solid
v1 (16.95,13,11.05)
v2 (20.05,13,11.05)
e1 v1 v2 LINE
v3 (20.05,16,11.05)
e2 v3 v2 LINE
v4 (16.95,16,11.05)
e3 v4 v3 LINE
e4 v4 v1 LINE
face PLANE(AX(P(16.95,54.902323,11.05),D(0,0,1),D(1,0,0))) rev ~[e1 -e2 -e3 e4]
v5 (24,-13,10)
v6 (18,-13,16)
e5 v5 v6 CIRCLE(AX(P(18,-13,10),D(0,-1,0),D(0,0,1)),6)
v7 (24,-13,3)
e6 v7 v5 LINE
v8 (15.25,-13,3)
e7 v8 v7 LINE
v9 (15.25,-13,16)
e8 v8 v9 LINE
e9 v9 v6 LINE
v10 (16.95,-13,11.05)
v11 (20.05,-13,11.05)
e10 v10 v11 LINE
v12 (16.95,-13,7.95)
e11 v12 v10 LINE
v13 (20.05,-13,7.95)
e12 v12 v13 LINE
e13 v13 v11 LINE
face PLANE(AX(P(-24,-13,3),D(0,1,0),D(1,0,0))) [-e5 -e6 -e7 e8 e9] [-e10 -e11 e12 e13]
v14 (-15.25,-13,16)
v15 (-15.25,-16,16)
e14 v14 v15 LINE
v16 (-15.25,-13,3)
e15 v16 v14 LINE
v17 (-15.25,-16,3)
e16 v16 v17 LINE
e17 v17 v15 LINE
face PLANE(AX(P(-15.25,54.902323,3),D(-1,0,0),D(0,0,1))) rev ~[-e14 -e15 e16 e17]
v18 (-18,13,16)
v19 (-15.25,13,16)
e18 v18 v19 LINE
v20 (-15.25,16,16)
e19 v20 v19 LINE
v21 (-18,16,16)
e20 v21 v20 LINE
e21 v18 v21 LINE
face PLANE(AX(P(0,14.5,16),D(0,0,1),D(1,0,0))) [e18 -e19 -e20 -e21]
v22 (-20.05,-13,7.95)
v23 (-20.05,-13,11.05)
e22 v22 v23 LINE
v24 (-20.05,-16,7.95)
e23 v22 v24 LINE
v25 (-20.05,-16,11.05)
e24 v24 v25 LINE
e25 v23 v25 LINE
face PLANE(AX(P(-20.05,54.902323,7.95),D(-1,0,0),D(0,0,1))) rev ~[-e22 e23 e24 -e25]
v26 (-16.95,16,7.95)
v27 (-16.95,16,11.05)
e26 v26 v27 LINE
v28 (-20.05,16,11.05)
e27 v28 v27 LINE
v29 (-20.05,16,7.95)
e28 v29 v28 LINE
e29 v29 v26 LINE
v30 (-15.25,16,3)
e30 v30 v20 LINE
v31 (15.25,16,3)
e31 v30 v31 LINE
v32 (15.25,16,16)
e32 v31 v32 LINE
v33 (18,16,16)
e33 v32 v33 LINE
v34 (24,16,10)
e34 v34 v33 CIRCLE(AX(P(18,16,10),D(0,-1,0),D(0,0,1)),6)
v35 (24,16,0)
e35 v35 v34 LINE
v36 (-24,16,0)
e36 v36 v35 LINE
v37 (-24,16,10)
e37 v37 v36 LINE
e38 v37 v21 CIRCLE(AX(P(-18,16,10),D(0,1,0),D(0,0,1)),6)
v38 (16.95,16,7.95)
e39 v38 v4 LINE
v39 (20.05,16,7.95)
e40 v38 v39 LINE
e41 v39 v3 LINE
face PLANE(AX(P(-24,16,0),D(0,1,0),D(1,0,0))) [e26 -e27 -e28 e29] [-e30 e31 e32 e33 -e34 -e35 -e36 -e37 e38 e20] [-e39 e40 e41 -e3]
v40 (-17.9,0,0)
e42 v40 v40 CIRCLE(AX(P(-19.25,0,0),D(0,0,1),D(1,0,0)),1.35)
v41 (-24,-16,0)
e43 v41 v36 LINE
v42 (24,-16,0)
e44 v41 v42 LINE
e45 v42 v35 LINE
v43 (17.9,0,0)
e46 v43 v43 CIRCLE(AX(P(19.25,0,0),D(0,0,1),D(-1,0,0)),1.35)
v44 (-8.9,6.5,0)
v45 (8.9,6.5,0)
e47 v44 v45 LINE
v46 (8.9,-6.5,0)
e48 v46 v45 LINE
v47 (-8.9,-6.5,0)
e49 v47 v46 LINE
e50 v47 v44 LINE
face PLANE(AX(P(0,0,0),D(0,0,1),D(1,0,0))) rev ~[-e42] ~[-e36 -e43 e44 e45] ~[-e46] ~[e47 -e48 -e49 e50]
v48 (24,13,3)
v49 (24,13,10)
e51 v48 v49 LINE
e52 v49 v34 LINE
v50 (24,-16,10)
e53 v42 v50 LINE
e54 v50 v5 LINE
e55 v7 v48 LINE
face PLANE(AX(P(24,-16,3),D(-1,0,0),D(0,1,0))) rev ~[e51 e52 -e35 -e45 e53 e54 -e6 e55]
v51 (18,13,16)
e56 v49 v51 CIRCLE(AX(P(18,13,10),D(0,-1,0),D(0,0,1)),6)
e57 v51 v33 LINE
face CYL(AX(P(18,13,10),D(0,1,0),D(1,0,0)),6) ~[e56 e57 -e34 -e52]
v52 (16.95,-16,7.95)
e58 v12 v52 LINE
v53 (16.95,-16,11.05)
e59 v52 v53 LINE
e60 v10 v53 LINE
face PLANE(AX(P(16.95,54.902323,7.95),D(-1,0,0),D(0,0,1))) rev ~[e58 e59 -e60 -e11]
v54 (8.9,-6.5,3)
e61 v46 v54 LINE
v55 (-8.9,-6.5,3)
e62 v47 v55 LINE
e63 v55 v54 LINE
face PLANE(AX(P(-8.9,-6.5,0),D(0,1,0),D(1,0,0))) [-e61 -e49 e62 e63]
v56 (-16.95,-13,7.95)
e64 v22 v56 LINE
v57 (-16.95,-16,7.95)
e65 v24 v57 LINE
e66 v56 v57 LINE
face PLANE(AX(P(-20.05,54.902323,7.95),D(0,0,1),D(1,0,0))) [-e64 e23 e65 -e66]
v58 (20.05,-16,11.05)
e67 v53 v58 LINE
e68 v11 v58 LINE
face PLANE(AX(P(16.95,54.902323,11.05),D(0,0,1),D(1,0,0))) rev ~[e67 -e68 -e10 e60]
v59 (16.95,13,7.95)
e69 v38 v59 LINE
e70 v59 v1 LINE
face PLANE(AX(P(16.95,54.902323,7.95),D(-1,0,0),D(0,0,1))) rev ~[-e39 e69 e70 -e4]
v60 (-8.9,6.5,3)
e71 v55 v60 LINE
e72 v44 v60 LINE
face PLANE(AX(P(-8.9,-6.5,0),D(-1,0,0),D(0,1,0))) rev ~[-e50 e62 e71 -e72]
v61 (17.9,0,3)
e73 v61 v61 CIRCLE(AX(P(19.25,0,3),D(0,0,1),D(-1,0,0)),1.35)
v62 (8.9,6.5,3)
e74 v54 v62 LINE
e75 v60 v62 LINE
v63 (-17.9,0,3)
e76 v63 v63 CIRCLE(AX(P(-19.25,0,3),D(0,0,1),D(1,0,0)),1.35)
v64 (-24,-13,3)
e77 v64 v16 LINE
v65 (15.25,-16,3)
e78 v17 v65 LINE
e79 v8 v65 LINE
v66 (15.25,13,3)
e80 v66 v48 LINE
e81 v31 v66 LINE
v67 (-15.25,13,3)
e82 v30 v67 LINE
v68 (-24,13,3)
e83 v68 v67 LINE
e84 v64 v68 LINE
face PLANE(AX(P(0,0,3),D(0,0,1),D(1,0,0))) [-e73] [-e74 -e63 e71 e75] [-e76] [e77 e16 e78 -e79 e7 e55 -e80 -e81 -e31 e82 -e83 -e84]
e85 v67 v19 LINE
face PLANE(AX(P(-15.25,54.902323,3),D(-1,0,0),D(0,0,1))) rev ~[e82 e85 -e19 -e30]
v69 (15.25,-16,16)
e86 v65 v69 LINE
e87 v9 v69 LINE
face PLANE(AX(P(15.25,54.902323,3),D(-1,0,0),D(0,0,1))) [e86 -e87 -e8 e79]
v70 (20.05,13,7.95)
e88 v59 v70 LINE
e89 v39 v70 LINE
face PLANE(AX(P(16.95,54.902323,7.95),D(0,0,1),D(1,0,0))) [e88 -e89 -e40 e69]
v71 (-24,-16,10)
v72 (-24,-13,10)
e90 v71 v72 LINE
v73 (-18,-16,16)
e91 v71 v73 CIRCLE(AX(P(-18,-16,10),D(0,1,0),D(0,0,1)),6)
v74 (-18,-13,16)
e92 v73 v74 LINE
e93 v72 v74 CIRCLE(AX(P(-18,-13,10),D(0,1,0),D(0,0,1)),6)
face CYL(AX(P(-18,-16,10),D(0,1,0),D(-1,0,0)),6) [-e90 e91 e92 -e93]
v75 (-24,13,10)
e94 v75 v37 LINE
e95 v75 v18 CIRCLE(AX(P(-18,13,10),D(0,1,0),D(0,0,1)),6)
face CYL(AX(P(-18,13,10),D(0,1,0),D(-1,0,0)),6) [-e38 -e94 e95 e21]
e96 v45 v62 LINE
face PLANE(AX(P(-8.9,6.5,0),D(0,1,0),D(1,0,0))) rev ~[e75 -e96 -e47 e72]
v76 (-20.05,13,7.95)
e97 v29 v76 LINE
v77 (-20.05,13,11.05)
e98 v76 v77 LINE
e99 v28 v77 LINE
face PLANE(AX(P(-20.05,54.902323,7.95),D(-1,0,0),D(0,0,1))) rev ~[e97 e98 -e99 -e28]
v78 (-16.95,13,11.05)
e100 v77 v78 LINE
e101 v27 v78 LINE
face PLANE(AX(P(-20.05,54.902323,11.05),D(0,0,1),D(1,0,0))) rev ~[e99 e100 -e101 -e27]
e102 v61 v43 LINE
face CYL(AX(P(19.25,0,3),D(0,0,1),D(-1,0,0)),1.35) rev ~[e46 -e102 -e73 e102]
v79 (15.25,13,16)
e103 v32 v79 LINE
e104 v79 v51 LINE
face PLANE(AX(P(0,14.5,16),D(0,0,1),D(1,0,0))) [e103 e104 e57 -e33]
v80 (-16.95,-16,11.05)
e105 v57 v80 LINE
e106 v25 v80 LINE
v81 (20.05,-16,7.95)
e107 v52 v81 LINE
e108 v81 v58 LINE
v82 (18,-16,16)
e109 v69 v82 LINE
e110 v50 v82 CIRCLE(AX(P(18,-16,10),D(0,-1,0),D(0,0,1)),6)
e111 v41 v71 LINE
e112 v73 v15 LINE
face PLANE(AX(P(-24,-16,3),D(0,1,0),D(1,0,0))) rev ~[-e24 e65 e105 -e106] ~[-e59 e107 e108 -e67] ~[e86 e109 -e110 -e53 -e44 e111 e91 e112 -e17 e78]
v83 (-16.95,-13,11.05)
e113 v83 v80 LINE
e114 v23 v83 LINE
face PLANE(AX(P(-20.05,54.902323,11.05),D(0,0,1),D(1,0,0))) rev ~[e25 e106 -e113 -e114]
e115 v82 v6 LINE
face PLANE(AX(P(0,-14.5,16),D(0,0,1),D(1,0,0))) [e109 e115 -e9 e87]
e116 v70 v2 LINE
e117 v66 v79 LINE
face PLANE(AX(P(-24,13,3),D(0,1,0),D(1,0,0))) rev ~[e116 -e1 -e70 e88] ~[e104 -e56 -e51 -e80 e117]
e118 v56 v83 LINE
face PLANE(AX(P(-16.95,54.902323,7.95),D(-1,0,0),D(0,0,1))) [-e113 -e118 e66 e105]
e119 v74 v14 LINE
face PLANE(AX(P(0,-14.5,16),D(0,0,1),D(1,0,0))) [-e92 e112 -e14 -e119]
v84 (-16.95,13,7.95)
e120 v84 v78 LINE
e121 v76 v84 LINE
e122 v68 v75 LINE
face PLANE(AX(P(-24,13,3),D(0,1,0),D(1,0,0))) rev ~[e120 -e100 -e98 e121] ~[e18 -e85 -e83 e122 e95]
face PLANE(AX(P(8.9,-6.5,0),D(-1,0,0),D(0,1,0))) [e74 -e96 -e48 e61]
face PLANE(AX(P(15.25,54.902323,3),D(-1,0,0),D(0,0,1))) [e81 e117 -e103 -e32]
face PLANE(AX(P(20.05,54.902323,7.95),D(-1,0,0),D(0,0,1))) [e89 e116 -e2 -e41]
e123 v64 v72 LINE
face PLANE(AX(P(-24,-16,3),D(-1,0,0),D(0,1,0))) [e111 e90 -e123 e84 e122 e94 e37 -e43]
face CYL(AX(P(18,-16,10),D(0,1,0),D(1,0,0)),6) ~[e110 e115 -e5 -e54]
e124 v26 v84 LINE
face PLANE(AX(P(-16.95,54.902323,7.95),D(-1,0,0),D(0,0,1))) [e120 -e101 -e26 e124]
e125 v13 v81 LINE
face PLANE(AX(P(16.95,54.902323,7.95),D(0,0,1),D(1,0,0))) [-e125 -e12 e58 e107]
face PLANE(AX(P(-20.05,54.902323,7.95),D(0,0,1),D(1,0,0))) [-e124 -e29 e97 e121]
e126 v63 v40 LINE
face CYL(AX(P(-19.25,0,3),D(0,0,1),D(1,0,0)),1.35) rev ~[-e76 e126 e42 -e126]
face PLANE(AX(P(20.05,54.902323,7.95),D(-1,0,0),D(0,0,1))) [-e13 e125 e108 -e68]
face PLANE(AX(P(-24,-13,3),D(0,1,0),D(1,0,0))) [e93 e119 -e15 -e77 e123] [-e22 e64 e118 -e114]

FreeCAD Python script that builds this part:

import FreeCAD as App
import Part
import Sketcher

V = App.Vector


def edges_at(feature, points):
    """Names of the edges that pass closest to the given points."""
    edges = feature.Shape.Edges
    near = lambda p: min(range(len(edges)), key=lambda i: edges[i].distToShape(Part.Vertex(*p))[0])
    return sorted({f"Edge{near(p) + 1}" for p in points})


def add_polygon(sketch, points):
    """Adds a closed chain of lines whose ends are joined by coincident constraints."""
    first, n = sketch.GeometryCount, len(points)
    for a, b in zip(points, points[1:] + points[:1]):
        sketch.addGeometry(Part.LineSegment(App.Vector(*a, 0), App.Vector(*b, 0)), False)
    for i in range(n):
        sketch.addConstraint(Sketcher.Constraint("Coincident", first + i, 2, first + (i + 1) % n, 1))

doc = App.newDocument("Part")
body = doc.addObject("PartDesign::Body", "Body")

# Sketch on XY plane
sketch1 = doc.addObject("Sketcher::SketchObject", "Sketch")
body.addObject(sketch1)
sketch1.AttachmentSupport = (doc.XY_Plane, [""])
sketch1.MapMode = "FlatFace"
add_polygon(sketch1, [(-24, 16), (-24, -16), (24, -16), (24, 16)])  # lines 0-3
add_polygon(sketch1, [(9, -6), (-9, -6), (-9, 6), (9, 6)])  # lines 4-7
sketch1.addConstraint(Sketcher.Constraint("Vertical", 0))
sketch1.addConstraint(Sketcher.Constraint("Horizontal", 1))
sketch1.addConstraint(Sketcher.Constraint("Vertical", 2))
sketch1.addConstraint(Sketcher.Constraint("Horizontal", 3))
sketch1.addConstraint(Sketcher.Constraint("Horizontal", 4))
sketch1.addConstraint(Sketcher.Constraint("Vertical", 5))
sketch1.addConstraint(Sketcher.Constraint("Horizontal", 6))
sketch1.addConstraint(Sketcher.Constraint("Vertical", 7))
sketch1.addConstraint(Sketcher.Constraint("Symmetric", 0, 2, 2, 2, -1, 1))
sketch1.addConstraint(Sketcher.Constraint("Symmetric", 4, 2, 6, 2, -1, 1))
sketch1.addConstraint(Sketcher.Constraint("DistanceX", 1, 1, 1, 2, 48.0))
sketch1.addConstraint(Sketcher.Constraint("DistanceY", 0, 2, 0, 1, 32.0))
sketch1.addConstraint(Sketcher.Constraint("DistanceY", 5, 1, 5, 2, 13.0))
sketch1.addConstraint(Sketcher.Constraint("DistanceX", 4, 2, 4, 1, 17.8))
pad1 = doc.addObject("PartDesign::Pad", "Pad")
body.addObject(pad1)
pad1.Profile = sketch1
pad1.Length = 3

# Sketch on XY plane
sketch2 = doc.addObject("Sketcher::SketchObject", "Sketch001")
body.addObject(sketch2)
sketch2.AttachmentSupport = (doc.XY_Plane, [""])
sketch2.MapMode = "FlatFace"
sketch2.AttachmentOffset = App.Placement(V(0, 0, 3), App.Rotation())
sketch2.addGeometry(Part.Circle(V(-19.2, 0, 0), V(0, 0, 1), 1.4), False)
sketch2.addGeometry(Part.Circle(V(19.2, 0, 0), V(0, 0, 1), 1.4), False)
sketch2.addConstraint(Sketcher.Constraint("Equal", 0, 1))
sketch2.addConstraint(Sketcher.Constraint("Symmetric", 0, 3, 1, 3, -1, 1))
sketch2.addConstraint(Sketcher.Constraint("PointOnObject", 0, 3, -1))
sketch2.addConstraint(Sketcher.Constraint("Diameter", 0, 2.7))
sketch2.addConstraint(Sketcher.Constraint("DistanceX", 0, 3, 1, 3, 38.5))
pocket1 = doc.addObject("PartDesign::Pocket", "Pocket")
body.addObject(pocket1)
pocket1.Profile = sketch2
pocket1.Type = "ThroughAll"

# Sketch on XY plane
sketch3 = doc.addObject("Sketcher::SketchObject", "Sketch002")
body.addObject(sketch3)
sketch3.AttachmentSupport = (doc.XY_Plane, [""])
sketch3.MapMode = "FlatFace"
sketch3.AttachmentOffset = App.Placement(V(0, 0, 3), App.Rotation())
add_polygon(sketch3, [(-24, -13), (-24, -16), (24, -16), (24, -13)])  # lines 0-3
add_polygon(sketch3, [(-24, 16), (-24, 13), (24, 13), (24, 16)])  # lines 4-7
sketch3.addConstraint(Sketcher.Constraint("Vertical", 0))
sketch3.addConstraint(Sketcher.Constraint("Horizontal", 1))
sketch3.addConstraint(Sketcher.Constraint("Vertical", 2))
sketch3.addConstraint(Sketcher.Constraint("Horizontal", 3))
sketch3.addConstraint(Sketcher.Constraint("Vertical", 4))
sketch3.addConstraint(Sketcher.Constraint("Horizontal", 5))
sketch3.addConstraint(Sketcher.Constraint("Vertical", 6))
sketch3.addConstraint(Sketcher.Constraint("Horizontal", 7))
sketch3.addConstraint(Sketcher.Constraint("Symmetric", 2, 2, 4, 2, -1, 1))
sketch3.addConstraint(Sketcher.Constraint("Symmetric", 0, 2, 6, 2, -1, 1))
sketch3.addConstraint(Sketcher.Constraint("Vertical", 3, 2, 4, 2))
sketch3.addConstraint(Sketcher.Constraint("DistanceX", 1, 1, 1, 2, 48.0))
sketch3.addConstraint(Sketcher.Constraint("DistanceY", 0, 2, 0, 1, 3.0))
sketch3.addConstraint(Sketcher.Constraint("DistanceY", 0, 2, -1, 1, 16.0))
pad2 = doc.addObject("PartDesign::Pad", "Pad001")
body.addObject(pad2)
pad2.Profile = sketch3
pad2.Length = 13

# Sketch on XZ plane
sketch4 = doc.addObject("Sketcher::SketchObject", "Sketch003")
body.addObject(sketch4)
sketch4.AttachmentSupport = (doc.XZ_Plane, [""])
sketch4.MapMode = "FlatFace"
sketch4.AttachmentOffset = App.Placement(V(0, 0, -13), App.Rotation())
add_polygon(sketch4, [(16.9, 11.1), (16.9, 8), (20.1, 8), (20.1, 11.1)])  # lines 0-3
add_polygon(sketch4, [(-20.1, 11.1), (-20.1, 8), (-16.9, 8), (-16.9, 11.1)])  # lines 4-7
sketch4.addConstraint(Sketcher.Constraint("Vertical", 0))
sketch4.addConstraint(Sketcher.Constraint("Horizontal", 1))
sketch4.addConstraint(Sketcher.Constraint("Vertical", 2))
sketch4.addConstraint(Sketcher.Constraint("Horizontal", 3))
sketch4.addConstraint(Sketcher.Constraint("Vertical", 4))
sketch4.addConstraint(Sketcher.Constraint("Horizontal", 5))
sketch4.addConstraint(Sketcher.Constraint("Vertical", 6))
sketch4.addConstraint(Sketcher.Constraint("Horizontal", 7))
sketch4.addConstraint(Sketcher.Constraint("Symmetric", 1, 2, 4, 2, -2))
sketch4.addConstraint(Sketcher.Constraint("Symmetric", 3, 2, 6, 2, -2))
sketch4.addConstraint(Sketcher.Constraint("Equal", 7, 0))
sketch4.addConstraint(Sketcher.Constraint("DistanceX", 1, 1, 1, 2, 3.1))
sketch4.addConstraint(Sketcher.Constraint("DistanceX", 4, 2, 0, 2, 37.0))
sketch4.addConstraint(Sketcher.Constraint("DistanceY", -1, 1, 0, 2, 7.95))
pocket2 = doc.addObject("PartDesign::Pocket", "Pocket001")
body.addObject(pocket2)
pocket2.Profile = sketch4
pocket2.Type = "ThroughAll"
pocket2.Midplane = True

# Sketch on XZ plane
sketch5 = doc.addObject("Sketcher::SketchObject", "Sketch004")
body.addObject(sketch5)
sketch5.AttachmentSupport = (doc.XZ_Plane, [""])
sketch5.MapMode = "FlatFace"
sketch5.AttachmentOffset = App.Placement(V(0, 0, -13), App.Rotation())
add_polygon(sketch5, [(-15, 16), (-15, 3), (15, 3), (15, 16)])  # lines 0-3
sketch5.addConstraint(Sketcher.Constraint("Vertical", 0))
sketch5.addConstraint(Sketcher.Constraint("Horizontal", 1))
sketch5.addConstraint(Sketcher.Constraint("Vertical", 2))
sketch5.addConstraint(Sketcher.Constraint("Horizontal", 3))
sketch5.addConstraint(Sketcher.Constraint("DistanceY", 0, 2, 0, 1, 13.0))
sketch5.addConstraint(Sketcher.Constraint("DistanceX", 1, 1, 1, 2, 30.5))
sketch5.addConstraint(Sketcher.Constraint("DistanceY", -1, 1, 0, 2, 3.0))
sketch5.addConstraint(Sketcher.Constraint("DistanceX", 0, 2, -1, 1, 15.25))
pocket3 = doc.addObject("PartDesign::Pocket", "Pocket002")
body.addObject(pocket3)
pocket3.Profile = sketch5
pocket3.Type = "ThroughAll"
pocket3.Midplane = True
doc.recompute()

fillet = doc.addObject("PartDesign::Fillet", "Fillet")
body.addObject(fillet)
fillet.Base = (pocket3, edges_at(pocket3, [(24, -14.5, 16)]))
fillet.Radius = 6
doc.recompute()

fillet2 = doc.addObject("PartDesign::Fillet", "Fillet001")
body.addObject(fillet2)
fillet2.Base = (fillet, edges_at(fillet, [(24, 14.5, 16)]))
fillet2.Radius = 6
doc.recompute()

fillet3 = doc.addObject("PartDesign::Fillet", "Fillet002")
body.addObject(fillet3)
fillet3.Base = (fillet2, edges_at(fillet2, [(-24, 14.5, 16), (-24, -14.5, 16)]))
fillet3.Radius = 6

doc.recompute()
